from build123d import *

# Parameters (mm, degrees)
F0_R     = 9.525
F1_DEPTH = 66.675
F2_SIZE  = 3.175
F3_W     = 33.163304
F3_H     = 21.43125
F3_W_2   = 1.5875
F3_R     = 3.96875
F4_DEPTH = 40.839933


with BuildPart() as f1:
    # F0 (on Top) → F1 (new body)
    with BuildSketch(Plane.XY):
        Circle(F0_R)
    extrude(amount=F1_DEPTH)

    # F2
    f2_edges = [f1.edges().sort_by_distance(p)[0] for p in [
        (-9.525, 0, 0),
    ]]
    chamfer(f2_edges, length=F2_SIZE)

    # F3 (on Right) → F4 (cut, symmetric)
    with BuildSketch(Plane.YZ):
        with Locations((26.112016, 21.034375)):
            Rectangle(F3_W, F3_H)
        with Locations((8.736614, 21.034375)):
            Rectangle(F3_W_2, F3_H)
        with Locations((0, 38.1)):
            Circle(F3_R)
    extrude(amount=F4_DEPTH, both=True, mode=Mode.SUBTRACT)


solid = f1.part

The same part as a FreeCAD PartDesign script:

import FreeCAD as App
import Part
import Sketcher
Q = App.Units.Quantity


def edges_at(feature, points):
    """Names of the edges that pass closest to the given points."""
    edges = feature.Shape.Edges
    near = lambda p: min(range(len(edges)), key=lambda i: edges[i].distToShape(Part.Vertex(*p))[0])
    return sorted({f"Edge{near(p) + 1}" for p in points})

doc = App.newDocument("Part")
body = doc.addObject("PartDesign::Body", "Body")

# Sketch on XY plane
sketch1 = body.newObject("Sketcher::SketchObject", "Sketch")
sketch1.AttachmentSupport = (doc.getObject("XY_Plane"), [""])
sketch1.MapMode = "FlatFace"
sketch1.addGeometry(Part.Circle(App.Vector(0, 0, 0), App.Vector(0, 0, 1), 10), False)
sketch1.addConstraint(Sketcher.Constraint("Coincident", 0, 3, -1, 1))
sketch1.addConstraint(Sketcher.Constraint("Diameter", 0, Q("0.75 in")))
pad1 = body.newObject("PartDesign::Pad", "Pad")
pad1.Profile = sketch1
pad1.Length = Q("2.625 in")
doc.recompute()

chamfer = body.newObject("PartDesign::Chamfer", "Chamfer")
chamfer.Base = (pad1, edges_at(pad1, [(-9.525, 0, 0)]))
chamfer.Size = Q("0.125 in")

# Sketch on YZ plane
sketch2 = body.newObject("Sketcher::SketchObject", "Sketch001")
sketch2.AttachmentSupport = (doc.getObject("YZ_Plane"), [""])
sketch2.MapMode = "FlatFace"
sketch2.addGeometry(Part.LineSegment(App.Vector(42.7, 10.3, 0), App.Vector(42.7, 31.8, 0)), False)
sketch2.addGeometry(Part.LineSegment(App.Vector(42.7, 31.8, 0), App.Vector(7.9, 31.8, 0)), False)
sketch2.addGeometry(Part.LineSegment(App.Vector(7.9, 31.8, 0), App.Vector(7.9, 10.3, 0)), False)
sketch2.addGeometry(Part.LineSegment(App.Vector(7.9, 10.3, 0), App.Vector(42.7, 10.3, 0)), False)
sketch2.addGeometry(Part.Circle(App.Vector(0, 38.1, 0), App.Vector(0, 0, 1), 4), False)
sketch2.addConstraint(Sketcher.Constraint("Coincident", 0, 2, 1, 1))
sketch2.addConstraint(Sketcher.Constraint("Coincident", 1, 2, 2, 1))
sketch2.addConstraint(Sketcher.Constraint("Coincident", 2, 2, 3, 1))
sketch2.addConstraint(Sketcher.Constraint("Coincident", 3, 2, 0, 1))
sketch2.addConstraint(Sketcher.Constraint("Vertical", 0))
sketch2.addConstraint(Sketcher.Constraint("Horizontal", 1))
sketch2.addConstraint(Sketcher.Constraint("Vertical", 2))
sketch2.addConstraint(Sketcher.Constraint("Horizontal", 3))
sketch2.addConstraint(Sketcher.Constraint("PointOnObject", 4, 3, -2))
sketch2.addConstraint(Sketcher.Constraint("Diameter", 4, Q("0.3125 in")))
sketch2.addConstraint(Sketcher.Constraint("DistanceY", -1, 1, 4, 3, Q("1.5 in")))
sketch2.addConstraint(Sketcher.Constraint("DistanceY", 0, 1, 0, 2, Q("0.84375 in")))
sketch2.addConstraint(Sketcher.Constraint("DistanceY", -1, 1, 0, 2, Q("1.25 in")))
sketch2.addConstraint(Sketcher.Constraint("DistanceX", 1, 2, 1, 1, Q("34.750804 mm")))
sketch2.addConstraint(Sketcher.Constraint("DistanceX", -1, 1, 0, 2, Q("42.693668 mm")))
pocket1 = body.newObject("PartDesign::Pocket", "Pocket")
pocket1.Profile = sketch2
pocket1.Length = 81.679866
pocket1.Midplane = True

doc.recompute()
